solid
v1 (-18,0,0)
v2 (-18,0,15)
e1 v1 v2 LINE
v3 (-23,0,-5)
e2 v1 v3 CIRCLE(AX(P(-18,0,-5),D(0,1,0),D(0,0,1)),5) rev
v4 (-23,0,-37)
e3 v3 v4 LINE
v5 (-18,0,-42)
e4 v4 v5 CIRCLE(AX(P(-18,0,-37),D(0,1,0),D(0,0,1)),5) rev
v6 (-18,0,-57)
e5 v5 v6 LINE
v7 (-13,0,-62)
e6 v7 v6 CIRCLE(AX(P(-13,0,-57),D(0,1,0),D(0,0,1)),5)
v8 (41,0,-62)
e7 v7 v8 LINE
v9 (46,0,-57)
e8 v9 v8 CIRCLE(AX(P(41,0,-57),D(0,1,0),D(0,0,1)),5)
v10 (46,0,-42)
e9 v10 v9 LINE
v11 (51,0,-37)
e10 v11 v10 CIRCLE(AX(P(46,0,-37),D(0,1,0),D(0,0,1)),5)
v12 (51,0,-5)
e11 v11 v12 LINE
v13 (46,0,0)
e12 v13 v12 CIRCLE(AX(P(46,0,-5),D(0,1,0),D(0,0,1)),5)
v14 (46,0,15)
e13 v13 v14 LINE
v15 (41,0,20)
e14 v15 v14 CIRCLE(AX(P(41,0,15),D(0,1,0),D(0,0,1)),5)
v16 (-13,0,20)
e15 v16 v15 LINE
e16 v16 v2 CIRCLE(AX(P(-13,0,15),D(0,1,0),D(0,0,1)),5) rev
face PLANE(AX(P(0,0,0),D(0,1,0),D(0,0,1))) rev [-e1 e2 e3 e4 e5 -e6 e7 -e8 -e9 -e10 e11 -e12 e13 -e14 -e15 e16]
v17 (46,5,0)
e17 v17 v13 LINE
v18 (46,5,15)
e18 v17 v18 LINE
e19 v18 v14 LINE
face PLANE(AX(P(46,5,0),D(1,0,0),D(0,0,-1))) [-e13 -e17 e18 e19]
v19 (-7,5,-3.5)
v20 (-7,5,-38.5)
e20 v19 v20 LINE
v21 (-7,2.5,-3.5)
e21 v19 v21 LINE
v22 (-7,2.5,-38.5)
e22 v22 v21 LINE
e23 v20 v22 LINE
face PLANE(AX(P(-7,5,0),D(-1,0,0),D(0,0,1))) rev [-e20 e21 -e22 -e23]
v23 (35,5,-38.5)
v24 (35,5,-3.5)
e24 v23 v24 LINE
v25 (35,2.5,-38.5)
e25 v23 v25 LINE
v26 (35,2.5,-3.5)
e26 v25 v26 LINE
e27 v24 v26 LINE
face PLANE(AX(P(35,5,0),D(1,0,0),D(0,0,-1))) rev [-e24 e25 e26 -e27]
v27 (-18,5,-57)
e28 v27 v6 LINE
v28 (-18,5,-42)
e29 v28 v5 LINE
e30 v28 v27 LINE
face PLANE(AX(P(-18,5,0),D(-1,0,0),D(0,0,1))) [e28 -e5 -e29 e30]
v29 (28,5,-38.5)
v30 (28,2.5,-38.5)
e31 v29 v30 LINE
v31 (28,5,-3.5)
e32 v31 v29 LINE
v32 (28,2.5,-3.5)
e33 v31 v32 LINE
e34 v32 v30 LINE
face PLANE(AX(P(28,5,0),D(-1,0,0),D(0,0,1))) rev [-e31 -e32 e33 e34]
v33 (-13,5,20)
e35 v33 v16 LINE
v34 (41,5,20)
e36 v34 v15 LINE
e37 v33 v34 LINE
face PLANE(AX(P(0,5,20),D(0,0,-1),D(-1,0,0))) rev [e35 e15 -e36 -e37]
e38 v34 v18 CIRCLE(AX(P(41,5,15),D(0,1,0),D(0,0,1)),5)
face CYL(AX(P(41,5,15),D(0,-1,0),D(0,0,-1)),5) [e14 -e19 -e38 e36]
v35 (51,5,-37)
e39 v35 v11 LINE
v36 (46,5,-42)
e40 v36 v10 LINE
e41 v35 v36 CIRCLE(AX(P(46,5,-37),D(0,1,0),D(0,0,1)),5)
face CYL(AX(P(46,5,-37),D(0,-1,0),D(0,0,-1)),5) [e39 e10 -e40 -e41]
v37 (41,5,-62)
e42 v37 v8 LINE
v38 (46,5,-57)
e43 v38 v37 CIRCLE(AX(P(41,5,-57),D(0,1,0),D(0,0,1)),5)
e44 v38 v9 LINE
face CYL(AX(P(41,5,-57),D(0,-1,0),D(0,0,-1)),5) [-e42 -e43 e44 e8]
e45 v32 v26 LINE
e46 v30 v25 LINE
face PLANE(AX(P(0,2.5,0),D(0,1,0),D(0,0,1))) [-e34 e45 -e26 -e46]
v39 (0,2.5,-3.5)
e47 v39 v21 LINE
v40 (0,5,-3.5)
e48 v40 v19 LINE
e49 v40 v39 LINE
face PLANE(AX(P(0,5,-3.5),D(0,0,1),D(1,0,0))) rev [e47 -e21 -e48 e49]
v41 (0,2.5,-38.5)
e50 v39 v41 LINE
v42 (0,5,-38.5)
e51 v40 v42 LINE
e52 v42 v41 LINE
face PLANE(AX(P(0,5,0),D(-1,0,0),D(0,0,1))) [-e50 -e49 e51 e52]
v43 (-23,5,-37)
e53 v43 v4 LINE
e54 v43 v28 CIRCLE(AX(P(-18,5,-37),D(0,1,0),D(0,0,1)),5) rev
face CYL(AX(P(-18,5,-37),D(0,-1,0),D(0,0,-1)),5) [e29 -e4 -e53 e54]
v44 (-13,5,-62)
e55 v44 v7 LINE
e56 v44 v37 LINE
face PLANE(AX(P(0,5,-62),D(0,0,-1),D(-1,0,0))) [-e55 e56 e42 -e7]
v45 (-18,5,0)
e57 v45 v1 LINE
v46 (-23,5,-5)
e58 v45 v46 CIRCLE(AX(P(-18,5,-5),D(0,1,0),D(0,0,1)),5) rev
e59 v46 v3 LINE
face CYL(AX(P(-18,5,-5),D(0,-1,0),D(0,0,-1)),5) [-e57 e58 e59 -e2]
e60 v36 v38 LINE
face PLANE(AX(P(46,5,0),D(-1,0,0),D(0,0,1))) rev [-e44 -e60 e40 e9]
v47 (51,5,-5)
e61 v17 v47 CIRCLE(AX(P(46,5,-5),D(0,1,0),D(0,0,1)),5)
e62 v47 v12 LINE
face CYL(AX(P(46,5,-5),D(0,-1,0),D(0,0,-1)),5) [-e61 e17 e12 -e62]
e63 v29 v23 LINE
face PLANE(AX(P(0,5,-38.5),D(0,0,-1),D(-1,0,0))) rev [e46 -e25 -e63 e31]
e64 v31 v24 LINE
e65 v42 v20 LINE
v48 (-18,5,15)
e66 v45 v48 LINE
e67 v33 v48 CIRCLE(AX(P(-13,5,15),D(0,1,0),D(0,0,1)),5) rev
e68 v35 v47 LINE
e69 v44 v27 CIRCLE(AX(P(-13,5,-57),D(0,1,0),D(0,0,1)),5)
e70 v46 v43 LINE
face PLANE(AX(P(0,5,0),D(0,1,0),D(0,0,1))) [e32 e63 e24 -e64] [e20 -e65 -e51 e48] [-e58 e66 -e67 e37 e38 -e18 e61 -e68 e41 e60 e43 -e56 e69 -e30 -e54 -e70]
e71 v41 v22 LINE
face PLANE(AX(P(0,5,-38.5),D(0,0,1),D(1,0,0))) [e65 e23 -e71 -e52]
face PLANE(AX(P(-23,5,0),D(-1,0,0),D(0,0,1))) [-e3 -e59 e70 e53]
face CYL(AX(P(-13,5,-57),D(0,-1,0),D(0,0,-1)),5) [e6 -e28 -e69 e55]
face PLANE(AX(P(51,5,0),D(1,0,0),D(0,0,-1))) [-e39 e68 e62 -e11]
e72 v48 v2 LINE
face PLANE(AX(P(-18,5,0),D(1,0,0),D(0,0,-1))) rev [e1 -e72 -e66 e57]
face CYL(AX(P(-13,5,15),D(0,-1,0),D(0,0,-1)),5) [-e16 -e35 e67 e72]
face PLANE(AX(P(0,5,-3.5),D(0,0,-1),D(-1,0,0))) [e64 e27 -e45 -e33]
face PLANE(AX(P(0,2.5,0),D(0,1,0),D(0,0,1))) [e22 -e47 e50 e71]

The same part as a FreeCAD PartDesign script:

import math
import FreeCAD as App
import Part
import Sketcher
from FreeCAD import Vector
Q = App.Units.Quantity


def add_polygon(sketch, points):
    """Adds a closed chain of lines whose ends are joined by coincident constraints."""
    first, n = sketch.GeometryCount, len(points)
    for a, b in zip(points, points[1:] + points[:1]):
        sketch.addGeometry(Part.LineSegment(App.Vector(*a, 0), App.Vector(*b, 0)), False)
    for i in range(n):
        sketch.addConstraint(Sketcher.Constraint("Coincident", first + i, 2, first + (i + 1) % n, 1))

doc = App.newDocument("Part")
body = doc.addObject("PartDesign::Body", "Body")

# Sketch on XZ plane
sketch1 = body.newObject("Sketcher::SketchObject", "Sketch")
sketch1.AttachmentSupport = (doc.getObject("XZ_Plane"), [""])
sketch1.MapMode = "FlatFace"
sketch1.addGeometry(Part.ArcOfCircle(Part.Circle(Vector(46, -5, 0), Vector(0, 0, 1), 5), math.radians(0), math.radians(90)), False)  # 0
sketch1.addGeometry(Part.LineSegment(Vector(51, -5, 0), Vector(51, -37, 0)), False)  # 1
sketch1.addGeometry(Part.ArcOfCircle(Part.Circle(Vector(46, -37, 0), Vector(0, 0, 1), 5), math.radians(-90), math.radians(0)), False)  # 2
sketch1.addGeometry(Part.LineSegment(Vector(46, -42, 0), Vector(46, -57, 0)), False)  # 3
sketch1.addGeometry(Part.ArcOfCircle(Part.Circle(Vector(41, -57, 0), Vector(0, 0, 1), 5), math.radians(-90), math.radians(0)), False)  # 4
sketch1.addGeometry(Part.LineSegment(Vector(41, -62, 0), Vector(-13, -62, 0)), False)  # 5
sketch1.addGeometry(Part.ArcOfCircle(Part.Circle(Vector(-13, -57, 0), Vector(0, 0, 1), 5), math.radians(180), math.radians(270)), False)  # 6
sketch1.addGeometry(Part.LineSegment(Vector(-18, -57, 0), Vector(-18, -42, 0)), False)  # 7
sketch1.addGeometry(Part.ArcOfCircle(Part.Circle(Vector(-18, -37, 0), Vector(0, 0, 1), 5), math.radians(180), math.radians(270)), False)  # 8
sketch1.addGeometry(Part.LineSegment(Vector(-23, -37, 0), Vector(-23, -5, 0)), False)  # 9
sketch1.addGeometry(Part.ArcOfCircle(Part.Circle(Vector(-18, -5, 0), Vector(0, 0, 1), 5), math.radians(90), math.radians(180)), False)  # 10
sketch1.addGeometry(Part.LineSegment(Vector(-18, 0, 0), Vector(-18, 15, 0)), False)  # 11
sketch1.addGeometry(Part.ArcOfCircle(Part.Circle(Vector(-13, 15, 0), Vector(0, 0, 1), 5), math.radians(90), math.radians(180)), False)  # 12
sketch1.addGeometry(Part.LineSegment(Vector(-13, 20, 0), Vector(41, 20, 0)), False)  # 13
sketch1.addGeometry(Part.ArcOfCircle(Part.Circle(Vector(41, 15, 0), Vector(0, 0, 1), 5), math.radians(0), math.radians(90)), False)  # 14
sketch1.addGeometry(Part.LineSegment(Vector(46, 15, 0), Vector(46, 0, 0)), False)  # 15
add_polygon(sketch1, [(0, -38), (0, -4), (-7, -4), (-7, -38)])  # lines 16-19
add_polygon(sketch1, [(35, -38), (35, -4), (28, -4), (28, -38)])  # lines 20-23
sketch1.addConstraint([
    Sketcher.Constraint("Tangent", 0, 1, 1, 1),
    Sketcher.Constraint("Tangent", 1, 2, 2, 2),
    Sketcher.Constraint("Coincident", 2, 1, 3, 1),
    Sketcher.Constraint("Tangent", 3, 2, 4, 2),
    Sketcher.Constraint("Tangent", 4, 1, 5, 1),
    Sketcher.Constraint("Tangent", 5, 2, 6, 2),
    Sketcher.Constraint("Tangent", 6, 1, 7, 1),
    Sketcher.Constraint("Coincident", 7, 2, 8, 2),
    Sketcher.Constraint("Tangent", 8, 1, 9, 1),
    Sketcher.Constraint("Tangent", 9, 2, 10, 2),
    Sketcher.Constraint("Coincident", 10, 1, 11, 1),
    Sketcher.Constraint("Tangent", 11, 2, 12, 2),
    Sketcher.Constraint("Tangent", 12, 1, 13, 1),
    Sketcher.Constraint("Tangent", 13, 2, 14, 2),
    Sketcher.Constraint("Tangent", 14, 1, 15, 1),
    Sketcher.Constraint("Coincident", 15, 2, 0, 2),
    Sketcher.Constraint("Vertical", 1),
    Sketcher.Constraint("Vertical", 3),
    Sketcher.Constraint("Horizontal", 5),
    Sketcher.Constraint("Vertical", 7),
    Sketcher.Constraint("Vertical", 9),
    Sketcher.Constraint("Vertical", 11),
    Sketcher.Constraint("Horizontal", 13),
    Sketcher.Constraint("Vertical", 15),
    Sketcher.Constraint("Vertical", 16),
    Sketcher.Constraint("Horizontal", 17),
    Sketcher.Constraint("Vertical", 18),
    Sketcher.Constraint("Horizontal", 19),
    Sketcher.Constraint("Vertical", 20),
    Sketcher.Constraint("Horizontal", 21),
    Sketcher.Constraint("Vertical", 22),
    Sketcher.Constraint("Horizontal", 23),
    Sketcher.Constraint("Equal", 0, 2),
    Sketcher.Constraint("Equal", 2, 4),
    Sketcher.Constraint("Equal", 4, 6),
    Sketcher.Constraint("Equal", 6, 8),
    Sketcher.Constraint("Equal", 8, 10),
    Sketcher.Constraint("Equal", 10, 12),
    Sketcher.Constraint("Equal", 12, 14),
    Sketcher.Constraint("PointOnObject", 10, 1, -1),
    Sketcher.Constraint("PointOnObject", 15, 2, -1),
    Sketcher.Constraint("PointOnObject", 16, 2, -2),
    Sketcher.Constraint("Horizontal", 2, 3, 8, 3),
    Sketcher.Constraint("Horizontal", 17, 2, 20, 2),
    Sketcher.Constraint("Horizontal", 19, 2, 22, 2),
    Sketcher.Constraint("Vertical", 6, 3, 12, 3),
    Sketcher.Constraint("Vertical", 4, 3, 14, 3),
    Sketcher.Constraint("Vertical", 0, 3, 2, 1),
    Sketcher.Constraint("Vertical", 10, 3, 6, 1),
    Sketcher.Constraint("Equal", 19, 21),
    Sketcher.Constraint("Equal", 7, 11),
    Sketcher.Constraint("Radius", 0, Q("5 mm")),
    Sketcher.Constraint("DistanceX", 5, 2, 5, 1, Q("54 mm")),
    Sketcher.Constraint("DistanceX", 17, 2, 17, 1, Q("7 mm")),
    Sketcher.Constraint("DistanceY", 1, 2, 1, 1, Q("32 mm")),
    Sketcher.Constraint("DistanceY", 3, 2, 3, 1, Q("15 mm")),
    Sketcher.Constraint("DistanceY", 16, 1, 16, 2, Q("35 mm")),
    Sketcher.Constraint("DistanceX", -1, 1, 0, 3, Q("46 mm")),
    Sketcher.Constraint("DistanceX", -1, 1, 20, 2, Q("35 mm")),
    Sketcher.Constraint("DistanceY", 16, 2, -1, 1, Q("3.5 mm")),
])
pad1 = body.newObject("PartDesign::Pad", "Pad")
pad1.Profile = sketch1
pad1.Length = 5
pad1.Reversed = True

# Sketch on XZ plane
sketch2 = body.newObject("Sketcher::SketchObject", "Sketch001")
sketch2.AttachmentSupport = (doc.getObject("XZ_Plane"), [""])
sketch2.MapMode = "FlatFace"
add_polygon(sketch2, [(-7, -38), (-7, -4), (0, -4), (0, -38)])  # lines 0-3
add_polygon(sketch2, [(28, -38), (28, -4), (35, -4), (35, -38)])  # lines 4-7
sketch2.addConstraint([
    Sketcher.Constraint("Vertical", 0),
    Sketcher.Constraint("Horizontal", 1),
    Sketcher.Constraint("Vertical", 2),
    Sketcher.Constraint("Horizontal", 3),
    Sketcher.Constraint("Vertical", 4),
    Sketcher.Constraint("Horizontal", 5),
    Sketcher.Constraint("Vertical", 6),
    Sketcher.Constraint("Horizontal", 7),
    Sketcher.Constraint("PointOnObject", 1, 2, -2),
    Sketcher.Constraint("Horizontal", 1, 2, 4, 2),
    Sketcher.Constraint("Horizontal", 3, 2, 6, 2),
    Sketcher.Constraint("Equal", 3, 5),
    Sketcher.Constraint("DistanceX", 1, 1, 1, 2, Q("7 mm")),
    Sketcher.Constraint("DistanceY", 0, 1, 0, 2, Q("35 mm")),
    Sketcher.Constraint("DistanceX", -1, 1, 4, 2, Q("28 mm")),
    Sketcher.Constraint("DistanceY", 0, 2, -1, 1, Q("3.5 mm")),
])
pad2 = body.newObject("PartDesign::Pad", "Pad001")
pad2.Profile = sketch2
pad2.Length = 2.5
pad2.Reversed = True

doc.recompute()
